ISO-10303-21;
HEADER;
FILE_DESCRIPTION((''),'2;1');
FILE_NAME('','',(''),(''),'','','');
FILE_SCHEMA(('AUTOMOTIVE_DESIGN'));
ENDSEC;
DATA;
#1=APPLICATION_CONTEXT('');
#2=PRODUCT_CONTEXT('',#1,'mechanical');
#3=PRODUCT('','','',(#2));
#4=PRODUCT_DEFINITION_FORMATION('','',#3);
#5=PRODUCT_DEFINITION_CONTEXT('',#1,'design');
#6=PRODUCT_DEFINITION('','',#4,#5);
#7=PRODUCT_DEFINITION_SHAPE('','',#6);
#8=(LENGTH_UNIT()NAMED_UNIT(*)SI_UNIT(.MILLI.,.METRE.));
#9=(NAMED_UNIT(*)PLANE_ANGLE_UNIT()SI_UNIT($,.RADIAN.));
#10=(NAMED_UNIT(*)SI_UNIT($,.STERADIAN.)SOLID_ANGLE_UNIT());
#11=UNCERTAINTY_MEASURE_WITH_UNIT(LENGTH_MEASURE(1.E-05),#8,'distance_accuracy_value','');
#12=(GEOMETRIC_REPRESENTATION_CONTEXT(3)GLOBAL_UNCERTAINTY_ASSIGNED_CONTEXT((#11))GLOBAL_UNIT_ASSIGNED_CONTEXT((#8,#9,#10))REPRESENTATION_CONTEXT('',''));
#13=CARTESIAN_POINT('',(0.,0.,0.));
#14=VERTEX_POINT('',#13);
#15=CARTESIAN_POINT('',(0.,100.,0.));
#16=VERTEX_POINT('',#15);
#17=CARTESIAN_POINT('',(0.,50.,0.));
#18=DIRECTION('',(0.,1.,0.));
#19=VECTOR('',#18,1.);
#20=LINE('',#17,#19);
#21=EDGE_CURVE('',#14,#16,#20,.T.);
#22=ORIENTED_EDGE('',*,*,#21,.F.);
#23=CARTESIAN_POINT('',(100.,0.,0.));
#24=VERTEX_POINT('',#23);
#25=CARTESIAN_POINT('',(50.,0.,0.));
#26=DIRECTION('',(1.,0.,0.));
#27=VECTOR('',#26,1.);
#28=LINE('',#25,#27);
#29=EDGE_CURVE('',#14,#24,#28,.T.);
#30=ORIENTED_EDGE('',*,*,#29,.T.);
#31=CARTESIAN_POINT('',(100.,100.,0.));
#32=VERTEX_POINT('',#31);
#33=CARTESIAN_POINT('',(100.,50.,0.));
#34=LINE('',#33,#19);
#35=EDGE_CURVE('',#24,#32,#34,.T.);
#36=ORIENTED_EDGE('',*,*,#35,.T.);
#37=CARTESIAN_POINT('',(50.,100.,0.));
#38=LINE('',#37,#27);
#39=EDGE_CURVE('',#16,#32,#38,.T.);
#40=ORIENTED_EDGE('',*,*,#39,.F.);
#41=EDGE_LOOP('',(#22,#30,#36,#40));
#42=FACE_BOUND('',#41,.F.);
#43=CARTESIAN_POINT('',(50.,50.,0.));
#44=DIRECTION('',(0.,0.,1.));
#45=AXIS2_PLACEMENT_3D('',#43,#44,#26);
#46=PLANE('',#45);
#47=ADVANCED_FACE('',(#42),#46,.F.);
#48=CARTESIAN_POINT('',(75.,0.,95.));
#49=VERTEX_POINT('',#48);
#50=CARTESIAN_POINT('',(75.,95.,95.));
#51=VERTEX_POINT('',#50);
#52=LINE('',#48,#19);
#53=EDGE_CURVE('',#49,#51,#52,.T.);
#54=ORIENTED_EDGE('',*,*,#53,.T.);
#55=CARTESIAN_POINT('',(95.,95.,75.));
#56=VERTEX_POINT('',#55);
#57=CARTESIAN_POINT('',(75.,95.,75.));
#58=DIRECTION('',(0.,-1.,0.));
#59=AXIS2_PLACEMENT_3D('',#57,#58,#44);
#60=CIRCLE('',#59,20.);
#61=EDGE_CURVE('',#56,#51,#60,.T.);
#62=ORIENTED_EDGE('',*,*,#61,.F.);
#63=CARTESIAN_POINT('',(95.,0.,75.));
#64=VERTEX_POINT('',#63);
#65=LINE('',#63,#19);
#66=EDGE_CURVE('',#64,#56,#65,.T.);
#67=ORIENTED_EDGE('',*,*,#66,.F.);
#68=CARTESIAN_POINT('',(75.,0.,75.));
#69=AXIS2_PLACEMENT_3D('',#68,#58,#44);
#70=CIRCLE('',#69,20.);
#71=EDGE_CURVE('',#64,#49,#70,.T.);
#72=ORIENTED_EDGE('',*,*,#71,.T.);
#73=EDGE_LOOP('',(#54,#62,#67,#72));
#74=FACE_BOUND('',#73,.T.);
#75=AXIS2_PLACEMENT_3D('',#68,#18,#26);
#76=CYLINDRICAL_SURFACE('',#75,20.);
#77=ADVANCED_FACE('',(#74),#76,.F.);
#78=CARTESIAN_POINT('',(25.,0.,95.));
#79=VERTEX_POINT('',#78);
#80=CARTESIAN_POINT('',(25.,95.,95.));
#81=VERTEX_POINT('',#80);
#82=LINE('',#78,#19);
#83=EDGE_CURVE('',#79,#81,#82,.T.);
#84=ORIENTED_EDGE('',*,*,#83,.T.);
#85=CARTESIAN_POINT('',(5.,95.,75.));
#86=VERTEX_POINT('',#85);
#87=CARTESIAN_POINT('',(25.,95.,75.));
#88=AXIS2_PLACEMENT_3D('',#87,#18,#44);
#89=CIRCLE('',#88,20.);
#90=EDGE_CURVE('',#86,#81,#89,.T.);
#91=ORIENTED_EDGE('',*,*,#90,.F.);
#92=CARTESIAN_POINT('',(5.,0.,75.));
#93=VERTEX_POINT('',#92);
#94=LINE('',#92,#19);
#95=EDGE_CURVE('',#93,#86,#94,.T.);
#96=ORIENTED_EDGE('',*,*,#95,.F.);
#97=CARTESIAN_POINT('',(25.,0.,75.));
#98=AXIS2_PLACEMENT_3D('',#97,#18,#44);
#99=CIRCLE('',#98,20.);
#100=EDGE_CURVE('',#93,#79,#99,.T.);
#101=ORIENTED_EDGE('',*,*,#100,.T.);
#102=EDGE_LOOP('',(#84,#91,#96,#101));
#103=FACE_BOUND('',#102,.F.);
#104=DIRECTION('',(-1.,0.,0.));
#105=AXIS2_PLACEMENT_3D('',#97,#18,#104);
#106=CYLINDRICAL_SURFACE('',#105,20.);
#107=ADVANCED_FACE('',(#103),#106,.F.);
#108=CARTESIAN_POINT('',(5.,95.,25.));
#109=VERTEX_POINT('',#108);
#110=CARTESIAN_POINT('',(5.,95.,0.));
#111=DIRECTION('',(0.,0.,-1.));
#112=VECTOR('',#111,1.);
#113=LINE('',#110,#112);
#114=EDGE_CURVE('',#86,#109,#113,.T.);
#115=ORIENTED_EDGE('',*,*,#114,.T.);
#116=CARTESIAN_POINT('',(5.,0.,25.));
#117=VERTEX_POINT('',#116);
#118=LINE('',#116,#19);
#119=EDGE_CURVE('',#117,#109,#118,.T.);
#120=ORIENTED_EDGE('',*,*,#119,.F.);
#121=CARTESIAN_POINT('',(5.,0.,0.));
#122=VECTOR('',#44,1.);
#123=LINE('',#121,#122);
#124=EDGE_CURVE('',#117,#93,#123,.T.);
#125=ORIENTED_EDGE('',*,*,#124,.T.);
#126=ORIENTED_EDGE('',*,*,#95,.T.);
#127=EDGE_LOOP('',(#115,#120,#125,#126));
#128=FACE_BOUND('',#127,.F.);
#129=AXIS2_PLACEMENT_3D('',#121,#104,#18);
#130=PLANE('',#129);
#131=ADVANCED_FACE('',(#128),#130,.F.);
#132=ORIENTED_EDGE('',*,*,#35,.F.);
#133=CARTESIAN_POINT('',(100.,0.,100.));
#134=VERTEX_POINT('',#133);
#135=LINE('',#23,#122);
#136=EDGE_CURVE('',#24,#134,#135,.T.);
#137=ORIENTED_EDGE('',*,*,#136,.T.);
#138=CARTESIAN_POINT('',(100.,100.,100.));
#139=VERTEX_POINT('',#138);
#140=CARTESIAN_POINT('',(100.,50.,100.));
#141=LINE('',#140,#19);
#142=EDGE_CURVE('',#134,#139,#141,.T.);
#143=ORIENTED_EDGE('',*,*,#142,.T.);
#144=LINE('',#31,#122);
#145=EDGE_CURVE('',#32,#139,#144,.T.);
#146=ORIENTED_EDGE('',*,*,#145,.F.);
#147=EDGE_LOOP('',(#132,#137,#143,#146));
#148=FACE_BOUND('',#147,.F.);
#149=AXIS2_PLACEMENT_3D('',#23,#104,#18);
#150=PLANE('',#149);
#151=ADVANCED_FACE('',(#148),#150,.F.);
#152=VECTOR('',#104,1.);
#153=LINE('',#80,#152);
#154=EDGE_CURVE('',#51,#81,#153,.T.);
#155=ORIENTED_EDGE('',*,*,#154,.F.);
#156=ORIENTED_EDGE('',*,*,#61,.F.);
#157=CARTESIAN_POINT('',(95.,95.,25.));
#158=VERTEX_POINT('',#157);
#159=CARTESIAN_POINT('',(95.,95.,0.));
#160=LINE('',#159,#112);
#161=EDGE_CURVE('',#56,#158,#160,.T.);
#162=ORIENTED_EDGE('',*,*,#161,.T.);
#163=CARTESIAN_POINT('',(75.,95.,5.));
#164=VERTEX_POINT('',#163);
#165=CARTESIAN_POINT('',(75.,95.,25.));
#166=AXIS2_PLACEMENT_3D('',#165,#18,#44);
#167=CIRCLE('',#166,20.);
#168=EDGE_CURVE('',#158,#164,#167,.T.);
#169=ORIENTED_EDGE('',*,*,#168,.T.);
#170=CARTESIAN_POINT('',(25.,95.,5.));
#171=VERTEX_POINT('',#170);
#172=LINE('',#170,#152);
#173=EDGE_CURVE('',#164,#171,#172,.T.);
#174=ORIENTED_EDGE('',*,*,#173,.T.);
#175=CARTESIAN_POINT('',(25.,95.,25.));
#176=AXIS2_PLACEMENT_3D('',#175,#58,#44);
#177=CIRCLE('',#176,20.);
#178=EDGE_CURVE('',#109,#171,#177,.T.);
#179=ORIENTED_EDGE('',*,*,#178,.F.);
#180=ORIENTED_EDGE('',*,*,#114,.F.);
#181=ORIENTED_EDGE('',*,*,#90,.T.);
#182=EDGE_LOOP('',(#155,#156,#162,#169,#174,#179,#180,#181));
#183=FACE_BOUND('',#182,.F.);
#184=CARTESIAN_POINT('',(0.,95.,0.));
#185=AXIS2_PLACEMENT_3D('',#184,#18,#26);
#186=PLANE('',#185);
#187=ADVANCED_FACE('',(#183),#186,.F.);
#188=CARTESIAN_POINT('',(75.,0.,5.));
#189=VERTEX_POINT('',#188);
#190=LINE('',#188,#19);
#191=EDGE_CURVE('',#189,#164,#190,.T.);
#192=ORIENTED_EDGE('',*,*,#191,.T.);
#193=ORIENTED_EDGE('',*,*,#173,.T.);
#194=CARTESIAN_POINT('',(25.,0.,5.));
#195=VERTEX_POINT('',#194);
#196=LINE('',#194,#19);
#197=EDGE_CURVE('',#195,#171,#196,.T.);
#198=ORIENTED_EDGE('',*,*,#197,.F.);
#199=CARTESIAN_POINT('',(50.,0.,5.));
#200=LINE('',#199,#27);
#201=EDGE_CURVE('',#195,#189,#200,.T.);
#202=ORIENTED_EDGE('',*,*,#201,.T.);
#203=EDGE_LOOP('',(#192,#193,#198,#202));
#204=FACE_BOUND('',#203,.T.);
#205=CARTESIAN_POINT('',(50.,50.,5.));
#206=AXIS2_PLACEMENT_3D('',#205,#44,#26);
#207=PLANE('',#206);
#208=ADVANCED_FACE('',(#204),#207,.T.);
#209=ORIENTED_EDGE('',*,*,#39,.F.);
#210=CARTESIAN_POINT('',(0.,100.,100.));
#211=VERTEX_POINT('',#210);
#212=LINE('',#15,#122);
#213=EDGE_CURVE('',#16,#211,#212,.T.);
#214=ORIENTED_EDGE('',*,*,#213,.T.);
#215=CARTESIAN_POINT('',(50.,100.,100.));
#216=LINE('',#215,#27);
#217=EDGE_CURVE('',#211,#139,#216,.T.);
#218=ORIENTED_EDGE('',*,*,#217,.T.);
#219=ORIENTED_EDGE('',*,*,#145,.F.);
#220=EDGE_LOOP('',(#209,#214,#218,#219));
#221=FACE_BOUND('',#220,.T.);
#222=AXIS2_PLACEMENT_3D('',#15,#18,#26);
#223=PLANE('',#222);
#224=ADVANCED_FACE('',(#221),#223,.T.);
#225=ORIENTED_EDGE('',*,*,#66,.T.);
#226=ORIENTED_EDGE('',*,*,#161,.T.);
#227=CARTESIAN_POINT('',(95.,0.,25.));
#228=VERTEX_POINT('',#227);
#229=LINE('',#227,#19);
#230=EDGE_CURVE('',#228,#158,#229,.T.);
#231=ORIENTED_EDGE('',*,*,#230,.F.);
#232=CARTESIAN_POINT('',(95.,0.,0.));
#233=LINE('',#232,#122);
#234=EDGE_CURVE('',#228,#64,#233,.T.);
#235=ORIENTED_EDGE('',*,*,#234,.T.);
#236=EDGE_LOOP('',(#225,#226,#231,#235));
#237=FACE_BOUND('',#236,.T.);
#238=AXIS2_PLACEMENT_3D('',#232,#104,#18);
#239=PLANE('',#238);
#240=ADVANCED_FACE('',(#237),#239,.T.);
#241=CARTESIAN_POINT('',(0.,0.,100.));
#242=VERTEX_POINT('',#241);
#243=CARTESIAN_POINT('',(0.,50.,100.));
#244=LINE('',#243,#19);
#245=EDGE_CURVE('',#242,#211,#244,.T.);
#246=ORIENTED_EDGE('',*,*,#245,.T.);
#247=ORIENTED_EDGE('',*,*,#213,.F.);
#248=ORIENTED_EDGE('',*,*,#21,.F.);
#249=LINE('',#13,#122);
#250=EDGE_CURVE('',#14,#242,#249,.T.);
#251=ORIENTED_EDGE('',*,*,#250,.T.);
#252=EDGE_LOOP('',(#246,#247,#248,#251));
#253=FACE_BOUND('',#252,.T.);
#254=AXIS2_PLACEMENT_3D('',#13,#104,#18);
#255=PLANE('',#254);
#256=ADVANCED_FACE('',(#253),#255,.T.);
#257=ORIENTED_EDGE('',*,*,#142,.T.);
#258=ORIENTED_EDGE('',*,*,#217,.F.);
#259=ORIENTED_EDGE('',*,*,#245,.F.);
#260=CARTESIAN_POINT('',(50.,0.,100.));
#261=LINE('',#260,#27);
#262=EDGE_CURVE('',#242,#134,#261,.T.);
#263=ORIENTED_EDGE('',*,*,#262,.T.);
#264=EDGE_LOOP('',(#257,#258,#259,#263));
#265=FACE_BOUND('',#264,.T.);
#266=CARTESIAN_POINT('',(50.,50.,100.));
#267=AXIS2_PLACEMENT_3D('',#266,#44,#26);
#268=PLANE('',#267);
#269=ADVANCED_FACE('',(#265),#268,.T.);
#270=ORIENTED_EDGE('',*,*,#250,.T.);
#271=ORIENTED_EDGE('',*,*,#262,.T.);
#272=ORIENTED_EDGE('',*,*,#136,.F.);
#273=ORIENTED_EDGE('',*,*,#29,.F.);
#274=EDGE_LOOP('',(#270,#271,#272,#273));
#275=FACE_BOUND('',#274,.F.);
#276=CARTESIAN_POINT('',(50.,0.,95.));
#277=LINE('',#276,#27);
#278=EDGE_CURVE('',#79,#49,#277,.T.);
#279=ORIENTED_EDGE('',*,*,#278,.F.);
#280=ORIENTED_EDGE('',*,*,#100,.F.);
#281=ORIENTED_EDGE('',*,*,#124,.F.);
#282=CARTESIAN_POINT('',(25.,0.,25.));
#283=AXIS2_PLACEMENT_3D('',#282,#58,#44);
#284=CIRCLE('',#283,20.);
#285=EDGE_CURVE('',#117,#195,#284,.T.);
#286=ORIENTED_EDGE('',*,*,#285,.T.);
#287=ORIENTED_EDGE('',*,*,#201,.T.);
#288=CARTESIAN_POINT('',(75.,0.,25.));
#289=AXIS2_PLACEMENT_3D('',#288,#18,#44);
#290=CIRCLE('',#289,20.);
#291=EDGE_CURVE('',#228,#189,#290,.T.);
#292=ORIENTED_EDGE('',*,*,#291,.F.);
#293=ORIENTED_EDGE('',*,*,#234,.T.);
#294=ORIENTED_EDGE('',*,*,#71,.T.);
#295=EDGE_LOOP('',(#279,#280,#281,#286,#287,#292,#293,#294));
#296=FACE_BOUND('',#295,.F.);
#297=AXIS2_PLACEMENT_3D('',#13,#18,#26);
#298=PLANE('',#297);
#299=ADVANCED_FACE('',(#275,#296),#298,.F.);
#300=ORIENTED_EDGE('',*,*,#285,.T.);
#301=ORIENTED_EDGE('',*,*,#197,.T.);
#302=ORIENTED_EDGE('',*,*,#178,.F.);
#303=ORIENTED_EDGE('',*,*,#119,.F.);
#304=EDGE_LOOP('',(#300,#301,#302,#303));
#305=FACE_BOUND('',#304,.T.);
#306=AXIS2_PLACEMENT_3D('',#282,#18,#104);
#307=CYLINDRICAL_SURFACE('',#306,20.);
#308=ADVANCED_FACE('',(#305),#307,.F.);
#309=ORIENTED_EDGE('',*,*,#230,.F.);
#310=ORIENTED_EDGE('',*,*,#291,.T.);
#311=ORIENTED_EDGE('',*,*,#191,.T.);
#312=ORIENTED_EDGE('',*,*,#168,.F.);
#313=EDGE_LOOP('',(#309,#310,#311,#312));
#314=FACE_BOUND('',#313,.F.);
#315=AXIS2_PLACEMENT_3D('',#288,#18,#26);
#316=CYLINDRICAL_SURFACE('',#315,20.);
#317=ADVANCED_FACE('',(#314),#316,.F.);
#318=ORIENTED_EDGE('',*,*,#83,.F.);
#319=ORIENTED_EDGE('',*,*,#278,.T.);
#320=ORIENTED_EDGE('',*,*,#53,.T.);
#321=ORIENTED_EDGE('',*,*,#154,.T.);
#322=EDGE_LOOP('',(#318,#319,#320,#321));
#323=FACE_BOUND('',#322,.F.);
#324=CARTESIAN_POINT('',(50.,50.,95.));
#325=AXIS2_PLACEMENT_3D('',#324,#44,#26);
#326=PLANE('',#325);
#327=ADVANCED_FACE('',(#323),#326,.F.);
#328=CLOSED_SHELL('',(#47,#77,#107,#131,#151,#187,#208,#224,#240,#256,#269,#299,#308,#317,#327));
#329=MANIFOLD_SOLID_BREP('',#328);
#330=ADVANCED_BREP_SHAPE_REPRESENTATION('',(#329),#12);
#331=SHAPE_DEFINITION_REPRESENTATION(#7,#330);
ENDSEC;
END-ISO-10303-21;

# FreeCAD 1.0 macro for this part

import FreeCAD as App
import Part
import Sketcher

V = App.Vector
Q = App.Units.Quantity


def edges_at(feature, points):
    """Names of the edges that pass closest to the given points."""
    edges = feature.Shape.Edges
    near = lambda p: min(range(len(edges)), key=lambda i: edges[i].distToShape(Part.Vertex(*p))[0])
    return sorted({f"Edge{near(p) + 1}" for p in points})


def faces_at(feature, points):
    """Names of the faces that lie closest to the given points."""
    faces = feature.Shape.Faces
    near = lambda p: min(range(len(faces)), key=lambda i: faces[i].distToShape(Part.Vertex(*p))[0])
    return sorted({f"Face{near(p) + 1}" for p in points})

doc = App.newDocument("Part")
params = doc.addObject("Spreadsheet::Sheet", "Params")
for row, (alias, value) in enumerate([
    ("sketch1_width", "100 mm"),
    ("pad1_length", "100 mm"),
    ("thickness_wall", "5 mm"),
    ("fillet_radius", "20 mm"),
], start=1):
    params.set(f"A{row}", alias)
    params.set(f"B{row}", "=" + value)
    params.setAlias(f"B{row}", alias)

body = doc.addObject("PartDesign::Body", "Body")

sketch1 = body.newObject("Sketcher::SketchObject", "Sketch")
sketch1.AttachmentSupport = (doc.getObject("XY_Plane"), [""])
sketch1.MapMode = "FlatFace"
sketch1.addGeometry(Part.LineSegment(V(0, 100, 0), V(0, 0, 0)), False)
sketch1.addGeometry(Part.LineSegment(V(0, 0, 0), V(100, 0, 0)), False)
sketch1.addGeometry(Part.LineSegment(V(100, 0, 0), V(100, 100, 0)), False)
sketch1.addGeometry(Part.LineSegment(V(100, 100, 0), V(0, 100, 0)), False)
sketch1.addConstraint(Sketcher.Constraint("Coincident", 0, 2, 1, 1))
sketch1.addConstraint(Sketcher.Constraint("Coincident", 1, 2, 2, 1))
sketch1.addConstraint(Sketcher.Constraint("Coincident", 2, 2, 3, 1))
sketch1.addConstraint(Sketcher.Constraint("Coincident", 3, 2, 0, 1))
sketch1.addConstraint(Sketcher.Constraint("Vertical", 0))
sketch1.addConstraint(Sketcher.Constraint("Horizontal", 1))
sketch1.addConstraint(Sketcher.Constraint("Vertical", 2))
sketch1.addConstraint(Sketcher.Constraint("Horizontal", 3))
sketch1.addConstraint(Sketcher.Constraint("Coincident", 0, 2, -1, 1))
sketch1.addConstraint(Sketcher.Constraint("Equal", 3, 0))
sketch1.addConstraint(Sketcher.Constraint("DistanceX", 1, 1, 1, 2, Q("100 mm")))
sketch1.setExpression("Constraints[10]", "Params.sketch1_width")
pad1 = body.newObject("PartDesign::Pad", "Pad")
pad1.Profile = sketch1
pad1.setExpression("Length", "Params.pad1_length")
doc.recompute()

thickness = body.newObject("PartDesign::Thickness", "Thickness")
thickness.Base = (pad1, faces_at(pad1, [(50, 0, 50)]))
thickness.setExpression("Value", "Params.thickness_wall")
thickness.Reversed = True
thickness.Join = "Arc"
doc.recompute()

fillet = body.newObject("PartDesign::Fillet", "Fillet")
fillet.Base = (thickness, edges_at(thickness, [
    (95, 47.5, 95),
    (95, 47.5, 5),
    (5, 47.5, 5),
    (5, 47.5, 95),
]))
fillet.setExpression("Radius", "Params.fillet_radius")

doc.recompute()
